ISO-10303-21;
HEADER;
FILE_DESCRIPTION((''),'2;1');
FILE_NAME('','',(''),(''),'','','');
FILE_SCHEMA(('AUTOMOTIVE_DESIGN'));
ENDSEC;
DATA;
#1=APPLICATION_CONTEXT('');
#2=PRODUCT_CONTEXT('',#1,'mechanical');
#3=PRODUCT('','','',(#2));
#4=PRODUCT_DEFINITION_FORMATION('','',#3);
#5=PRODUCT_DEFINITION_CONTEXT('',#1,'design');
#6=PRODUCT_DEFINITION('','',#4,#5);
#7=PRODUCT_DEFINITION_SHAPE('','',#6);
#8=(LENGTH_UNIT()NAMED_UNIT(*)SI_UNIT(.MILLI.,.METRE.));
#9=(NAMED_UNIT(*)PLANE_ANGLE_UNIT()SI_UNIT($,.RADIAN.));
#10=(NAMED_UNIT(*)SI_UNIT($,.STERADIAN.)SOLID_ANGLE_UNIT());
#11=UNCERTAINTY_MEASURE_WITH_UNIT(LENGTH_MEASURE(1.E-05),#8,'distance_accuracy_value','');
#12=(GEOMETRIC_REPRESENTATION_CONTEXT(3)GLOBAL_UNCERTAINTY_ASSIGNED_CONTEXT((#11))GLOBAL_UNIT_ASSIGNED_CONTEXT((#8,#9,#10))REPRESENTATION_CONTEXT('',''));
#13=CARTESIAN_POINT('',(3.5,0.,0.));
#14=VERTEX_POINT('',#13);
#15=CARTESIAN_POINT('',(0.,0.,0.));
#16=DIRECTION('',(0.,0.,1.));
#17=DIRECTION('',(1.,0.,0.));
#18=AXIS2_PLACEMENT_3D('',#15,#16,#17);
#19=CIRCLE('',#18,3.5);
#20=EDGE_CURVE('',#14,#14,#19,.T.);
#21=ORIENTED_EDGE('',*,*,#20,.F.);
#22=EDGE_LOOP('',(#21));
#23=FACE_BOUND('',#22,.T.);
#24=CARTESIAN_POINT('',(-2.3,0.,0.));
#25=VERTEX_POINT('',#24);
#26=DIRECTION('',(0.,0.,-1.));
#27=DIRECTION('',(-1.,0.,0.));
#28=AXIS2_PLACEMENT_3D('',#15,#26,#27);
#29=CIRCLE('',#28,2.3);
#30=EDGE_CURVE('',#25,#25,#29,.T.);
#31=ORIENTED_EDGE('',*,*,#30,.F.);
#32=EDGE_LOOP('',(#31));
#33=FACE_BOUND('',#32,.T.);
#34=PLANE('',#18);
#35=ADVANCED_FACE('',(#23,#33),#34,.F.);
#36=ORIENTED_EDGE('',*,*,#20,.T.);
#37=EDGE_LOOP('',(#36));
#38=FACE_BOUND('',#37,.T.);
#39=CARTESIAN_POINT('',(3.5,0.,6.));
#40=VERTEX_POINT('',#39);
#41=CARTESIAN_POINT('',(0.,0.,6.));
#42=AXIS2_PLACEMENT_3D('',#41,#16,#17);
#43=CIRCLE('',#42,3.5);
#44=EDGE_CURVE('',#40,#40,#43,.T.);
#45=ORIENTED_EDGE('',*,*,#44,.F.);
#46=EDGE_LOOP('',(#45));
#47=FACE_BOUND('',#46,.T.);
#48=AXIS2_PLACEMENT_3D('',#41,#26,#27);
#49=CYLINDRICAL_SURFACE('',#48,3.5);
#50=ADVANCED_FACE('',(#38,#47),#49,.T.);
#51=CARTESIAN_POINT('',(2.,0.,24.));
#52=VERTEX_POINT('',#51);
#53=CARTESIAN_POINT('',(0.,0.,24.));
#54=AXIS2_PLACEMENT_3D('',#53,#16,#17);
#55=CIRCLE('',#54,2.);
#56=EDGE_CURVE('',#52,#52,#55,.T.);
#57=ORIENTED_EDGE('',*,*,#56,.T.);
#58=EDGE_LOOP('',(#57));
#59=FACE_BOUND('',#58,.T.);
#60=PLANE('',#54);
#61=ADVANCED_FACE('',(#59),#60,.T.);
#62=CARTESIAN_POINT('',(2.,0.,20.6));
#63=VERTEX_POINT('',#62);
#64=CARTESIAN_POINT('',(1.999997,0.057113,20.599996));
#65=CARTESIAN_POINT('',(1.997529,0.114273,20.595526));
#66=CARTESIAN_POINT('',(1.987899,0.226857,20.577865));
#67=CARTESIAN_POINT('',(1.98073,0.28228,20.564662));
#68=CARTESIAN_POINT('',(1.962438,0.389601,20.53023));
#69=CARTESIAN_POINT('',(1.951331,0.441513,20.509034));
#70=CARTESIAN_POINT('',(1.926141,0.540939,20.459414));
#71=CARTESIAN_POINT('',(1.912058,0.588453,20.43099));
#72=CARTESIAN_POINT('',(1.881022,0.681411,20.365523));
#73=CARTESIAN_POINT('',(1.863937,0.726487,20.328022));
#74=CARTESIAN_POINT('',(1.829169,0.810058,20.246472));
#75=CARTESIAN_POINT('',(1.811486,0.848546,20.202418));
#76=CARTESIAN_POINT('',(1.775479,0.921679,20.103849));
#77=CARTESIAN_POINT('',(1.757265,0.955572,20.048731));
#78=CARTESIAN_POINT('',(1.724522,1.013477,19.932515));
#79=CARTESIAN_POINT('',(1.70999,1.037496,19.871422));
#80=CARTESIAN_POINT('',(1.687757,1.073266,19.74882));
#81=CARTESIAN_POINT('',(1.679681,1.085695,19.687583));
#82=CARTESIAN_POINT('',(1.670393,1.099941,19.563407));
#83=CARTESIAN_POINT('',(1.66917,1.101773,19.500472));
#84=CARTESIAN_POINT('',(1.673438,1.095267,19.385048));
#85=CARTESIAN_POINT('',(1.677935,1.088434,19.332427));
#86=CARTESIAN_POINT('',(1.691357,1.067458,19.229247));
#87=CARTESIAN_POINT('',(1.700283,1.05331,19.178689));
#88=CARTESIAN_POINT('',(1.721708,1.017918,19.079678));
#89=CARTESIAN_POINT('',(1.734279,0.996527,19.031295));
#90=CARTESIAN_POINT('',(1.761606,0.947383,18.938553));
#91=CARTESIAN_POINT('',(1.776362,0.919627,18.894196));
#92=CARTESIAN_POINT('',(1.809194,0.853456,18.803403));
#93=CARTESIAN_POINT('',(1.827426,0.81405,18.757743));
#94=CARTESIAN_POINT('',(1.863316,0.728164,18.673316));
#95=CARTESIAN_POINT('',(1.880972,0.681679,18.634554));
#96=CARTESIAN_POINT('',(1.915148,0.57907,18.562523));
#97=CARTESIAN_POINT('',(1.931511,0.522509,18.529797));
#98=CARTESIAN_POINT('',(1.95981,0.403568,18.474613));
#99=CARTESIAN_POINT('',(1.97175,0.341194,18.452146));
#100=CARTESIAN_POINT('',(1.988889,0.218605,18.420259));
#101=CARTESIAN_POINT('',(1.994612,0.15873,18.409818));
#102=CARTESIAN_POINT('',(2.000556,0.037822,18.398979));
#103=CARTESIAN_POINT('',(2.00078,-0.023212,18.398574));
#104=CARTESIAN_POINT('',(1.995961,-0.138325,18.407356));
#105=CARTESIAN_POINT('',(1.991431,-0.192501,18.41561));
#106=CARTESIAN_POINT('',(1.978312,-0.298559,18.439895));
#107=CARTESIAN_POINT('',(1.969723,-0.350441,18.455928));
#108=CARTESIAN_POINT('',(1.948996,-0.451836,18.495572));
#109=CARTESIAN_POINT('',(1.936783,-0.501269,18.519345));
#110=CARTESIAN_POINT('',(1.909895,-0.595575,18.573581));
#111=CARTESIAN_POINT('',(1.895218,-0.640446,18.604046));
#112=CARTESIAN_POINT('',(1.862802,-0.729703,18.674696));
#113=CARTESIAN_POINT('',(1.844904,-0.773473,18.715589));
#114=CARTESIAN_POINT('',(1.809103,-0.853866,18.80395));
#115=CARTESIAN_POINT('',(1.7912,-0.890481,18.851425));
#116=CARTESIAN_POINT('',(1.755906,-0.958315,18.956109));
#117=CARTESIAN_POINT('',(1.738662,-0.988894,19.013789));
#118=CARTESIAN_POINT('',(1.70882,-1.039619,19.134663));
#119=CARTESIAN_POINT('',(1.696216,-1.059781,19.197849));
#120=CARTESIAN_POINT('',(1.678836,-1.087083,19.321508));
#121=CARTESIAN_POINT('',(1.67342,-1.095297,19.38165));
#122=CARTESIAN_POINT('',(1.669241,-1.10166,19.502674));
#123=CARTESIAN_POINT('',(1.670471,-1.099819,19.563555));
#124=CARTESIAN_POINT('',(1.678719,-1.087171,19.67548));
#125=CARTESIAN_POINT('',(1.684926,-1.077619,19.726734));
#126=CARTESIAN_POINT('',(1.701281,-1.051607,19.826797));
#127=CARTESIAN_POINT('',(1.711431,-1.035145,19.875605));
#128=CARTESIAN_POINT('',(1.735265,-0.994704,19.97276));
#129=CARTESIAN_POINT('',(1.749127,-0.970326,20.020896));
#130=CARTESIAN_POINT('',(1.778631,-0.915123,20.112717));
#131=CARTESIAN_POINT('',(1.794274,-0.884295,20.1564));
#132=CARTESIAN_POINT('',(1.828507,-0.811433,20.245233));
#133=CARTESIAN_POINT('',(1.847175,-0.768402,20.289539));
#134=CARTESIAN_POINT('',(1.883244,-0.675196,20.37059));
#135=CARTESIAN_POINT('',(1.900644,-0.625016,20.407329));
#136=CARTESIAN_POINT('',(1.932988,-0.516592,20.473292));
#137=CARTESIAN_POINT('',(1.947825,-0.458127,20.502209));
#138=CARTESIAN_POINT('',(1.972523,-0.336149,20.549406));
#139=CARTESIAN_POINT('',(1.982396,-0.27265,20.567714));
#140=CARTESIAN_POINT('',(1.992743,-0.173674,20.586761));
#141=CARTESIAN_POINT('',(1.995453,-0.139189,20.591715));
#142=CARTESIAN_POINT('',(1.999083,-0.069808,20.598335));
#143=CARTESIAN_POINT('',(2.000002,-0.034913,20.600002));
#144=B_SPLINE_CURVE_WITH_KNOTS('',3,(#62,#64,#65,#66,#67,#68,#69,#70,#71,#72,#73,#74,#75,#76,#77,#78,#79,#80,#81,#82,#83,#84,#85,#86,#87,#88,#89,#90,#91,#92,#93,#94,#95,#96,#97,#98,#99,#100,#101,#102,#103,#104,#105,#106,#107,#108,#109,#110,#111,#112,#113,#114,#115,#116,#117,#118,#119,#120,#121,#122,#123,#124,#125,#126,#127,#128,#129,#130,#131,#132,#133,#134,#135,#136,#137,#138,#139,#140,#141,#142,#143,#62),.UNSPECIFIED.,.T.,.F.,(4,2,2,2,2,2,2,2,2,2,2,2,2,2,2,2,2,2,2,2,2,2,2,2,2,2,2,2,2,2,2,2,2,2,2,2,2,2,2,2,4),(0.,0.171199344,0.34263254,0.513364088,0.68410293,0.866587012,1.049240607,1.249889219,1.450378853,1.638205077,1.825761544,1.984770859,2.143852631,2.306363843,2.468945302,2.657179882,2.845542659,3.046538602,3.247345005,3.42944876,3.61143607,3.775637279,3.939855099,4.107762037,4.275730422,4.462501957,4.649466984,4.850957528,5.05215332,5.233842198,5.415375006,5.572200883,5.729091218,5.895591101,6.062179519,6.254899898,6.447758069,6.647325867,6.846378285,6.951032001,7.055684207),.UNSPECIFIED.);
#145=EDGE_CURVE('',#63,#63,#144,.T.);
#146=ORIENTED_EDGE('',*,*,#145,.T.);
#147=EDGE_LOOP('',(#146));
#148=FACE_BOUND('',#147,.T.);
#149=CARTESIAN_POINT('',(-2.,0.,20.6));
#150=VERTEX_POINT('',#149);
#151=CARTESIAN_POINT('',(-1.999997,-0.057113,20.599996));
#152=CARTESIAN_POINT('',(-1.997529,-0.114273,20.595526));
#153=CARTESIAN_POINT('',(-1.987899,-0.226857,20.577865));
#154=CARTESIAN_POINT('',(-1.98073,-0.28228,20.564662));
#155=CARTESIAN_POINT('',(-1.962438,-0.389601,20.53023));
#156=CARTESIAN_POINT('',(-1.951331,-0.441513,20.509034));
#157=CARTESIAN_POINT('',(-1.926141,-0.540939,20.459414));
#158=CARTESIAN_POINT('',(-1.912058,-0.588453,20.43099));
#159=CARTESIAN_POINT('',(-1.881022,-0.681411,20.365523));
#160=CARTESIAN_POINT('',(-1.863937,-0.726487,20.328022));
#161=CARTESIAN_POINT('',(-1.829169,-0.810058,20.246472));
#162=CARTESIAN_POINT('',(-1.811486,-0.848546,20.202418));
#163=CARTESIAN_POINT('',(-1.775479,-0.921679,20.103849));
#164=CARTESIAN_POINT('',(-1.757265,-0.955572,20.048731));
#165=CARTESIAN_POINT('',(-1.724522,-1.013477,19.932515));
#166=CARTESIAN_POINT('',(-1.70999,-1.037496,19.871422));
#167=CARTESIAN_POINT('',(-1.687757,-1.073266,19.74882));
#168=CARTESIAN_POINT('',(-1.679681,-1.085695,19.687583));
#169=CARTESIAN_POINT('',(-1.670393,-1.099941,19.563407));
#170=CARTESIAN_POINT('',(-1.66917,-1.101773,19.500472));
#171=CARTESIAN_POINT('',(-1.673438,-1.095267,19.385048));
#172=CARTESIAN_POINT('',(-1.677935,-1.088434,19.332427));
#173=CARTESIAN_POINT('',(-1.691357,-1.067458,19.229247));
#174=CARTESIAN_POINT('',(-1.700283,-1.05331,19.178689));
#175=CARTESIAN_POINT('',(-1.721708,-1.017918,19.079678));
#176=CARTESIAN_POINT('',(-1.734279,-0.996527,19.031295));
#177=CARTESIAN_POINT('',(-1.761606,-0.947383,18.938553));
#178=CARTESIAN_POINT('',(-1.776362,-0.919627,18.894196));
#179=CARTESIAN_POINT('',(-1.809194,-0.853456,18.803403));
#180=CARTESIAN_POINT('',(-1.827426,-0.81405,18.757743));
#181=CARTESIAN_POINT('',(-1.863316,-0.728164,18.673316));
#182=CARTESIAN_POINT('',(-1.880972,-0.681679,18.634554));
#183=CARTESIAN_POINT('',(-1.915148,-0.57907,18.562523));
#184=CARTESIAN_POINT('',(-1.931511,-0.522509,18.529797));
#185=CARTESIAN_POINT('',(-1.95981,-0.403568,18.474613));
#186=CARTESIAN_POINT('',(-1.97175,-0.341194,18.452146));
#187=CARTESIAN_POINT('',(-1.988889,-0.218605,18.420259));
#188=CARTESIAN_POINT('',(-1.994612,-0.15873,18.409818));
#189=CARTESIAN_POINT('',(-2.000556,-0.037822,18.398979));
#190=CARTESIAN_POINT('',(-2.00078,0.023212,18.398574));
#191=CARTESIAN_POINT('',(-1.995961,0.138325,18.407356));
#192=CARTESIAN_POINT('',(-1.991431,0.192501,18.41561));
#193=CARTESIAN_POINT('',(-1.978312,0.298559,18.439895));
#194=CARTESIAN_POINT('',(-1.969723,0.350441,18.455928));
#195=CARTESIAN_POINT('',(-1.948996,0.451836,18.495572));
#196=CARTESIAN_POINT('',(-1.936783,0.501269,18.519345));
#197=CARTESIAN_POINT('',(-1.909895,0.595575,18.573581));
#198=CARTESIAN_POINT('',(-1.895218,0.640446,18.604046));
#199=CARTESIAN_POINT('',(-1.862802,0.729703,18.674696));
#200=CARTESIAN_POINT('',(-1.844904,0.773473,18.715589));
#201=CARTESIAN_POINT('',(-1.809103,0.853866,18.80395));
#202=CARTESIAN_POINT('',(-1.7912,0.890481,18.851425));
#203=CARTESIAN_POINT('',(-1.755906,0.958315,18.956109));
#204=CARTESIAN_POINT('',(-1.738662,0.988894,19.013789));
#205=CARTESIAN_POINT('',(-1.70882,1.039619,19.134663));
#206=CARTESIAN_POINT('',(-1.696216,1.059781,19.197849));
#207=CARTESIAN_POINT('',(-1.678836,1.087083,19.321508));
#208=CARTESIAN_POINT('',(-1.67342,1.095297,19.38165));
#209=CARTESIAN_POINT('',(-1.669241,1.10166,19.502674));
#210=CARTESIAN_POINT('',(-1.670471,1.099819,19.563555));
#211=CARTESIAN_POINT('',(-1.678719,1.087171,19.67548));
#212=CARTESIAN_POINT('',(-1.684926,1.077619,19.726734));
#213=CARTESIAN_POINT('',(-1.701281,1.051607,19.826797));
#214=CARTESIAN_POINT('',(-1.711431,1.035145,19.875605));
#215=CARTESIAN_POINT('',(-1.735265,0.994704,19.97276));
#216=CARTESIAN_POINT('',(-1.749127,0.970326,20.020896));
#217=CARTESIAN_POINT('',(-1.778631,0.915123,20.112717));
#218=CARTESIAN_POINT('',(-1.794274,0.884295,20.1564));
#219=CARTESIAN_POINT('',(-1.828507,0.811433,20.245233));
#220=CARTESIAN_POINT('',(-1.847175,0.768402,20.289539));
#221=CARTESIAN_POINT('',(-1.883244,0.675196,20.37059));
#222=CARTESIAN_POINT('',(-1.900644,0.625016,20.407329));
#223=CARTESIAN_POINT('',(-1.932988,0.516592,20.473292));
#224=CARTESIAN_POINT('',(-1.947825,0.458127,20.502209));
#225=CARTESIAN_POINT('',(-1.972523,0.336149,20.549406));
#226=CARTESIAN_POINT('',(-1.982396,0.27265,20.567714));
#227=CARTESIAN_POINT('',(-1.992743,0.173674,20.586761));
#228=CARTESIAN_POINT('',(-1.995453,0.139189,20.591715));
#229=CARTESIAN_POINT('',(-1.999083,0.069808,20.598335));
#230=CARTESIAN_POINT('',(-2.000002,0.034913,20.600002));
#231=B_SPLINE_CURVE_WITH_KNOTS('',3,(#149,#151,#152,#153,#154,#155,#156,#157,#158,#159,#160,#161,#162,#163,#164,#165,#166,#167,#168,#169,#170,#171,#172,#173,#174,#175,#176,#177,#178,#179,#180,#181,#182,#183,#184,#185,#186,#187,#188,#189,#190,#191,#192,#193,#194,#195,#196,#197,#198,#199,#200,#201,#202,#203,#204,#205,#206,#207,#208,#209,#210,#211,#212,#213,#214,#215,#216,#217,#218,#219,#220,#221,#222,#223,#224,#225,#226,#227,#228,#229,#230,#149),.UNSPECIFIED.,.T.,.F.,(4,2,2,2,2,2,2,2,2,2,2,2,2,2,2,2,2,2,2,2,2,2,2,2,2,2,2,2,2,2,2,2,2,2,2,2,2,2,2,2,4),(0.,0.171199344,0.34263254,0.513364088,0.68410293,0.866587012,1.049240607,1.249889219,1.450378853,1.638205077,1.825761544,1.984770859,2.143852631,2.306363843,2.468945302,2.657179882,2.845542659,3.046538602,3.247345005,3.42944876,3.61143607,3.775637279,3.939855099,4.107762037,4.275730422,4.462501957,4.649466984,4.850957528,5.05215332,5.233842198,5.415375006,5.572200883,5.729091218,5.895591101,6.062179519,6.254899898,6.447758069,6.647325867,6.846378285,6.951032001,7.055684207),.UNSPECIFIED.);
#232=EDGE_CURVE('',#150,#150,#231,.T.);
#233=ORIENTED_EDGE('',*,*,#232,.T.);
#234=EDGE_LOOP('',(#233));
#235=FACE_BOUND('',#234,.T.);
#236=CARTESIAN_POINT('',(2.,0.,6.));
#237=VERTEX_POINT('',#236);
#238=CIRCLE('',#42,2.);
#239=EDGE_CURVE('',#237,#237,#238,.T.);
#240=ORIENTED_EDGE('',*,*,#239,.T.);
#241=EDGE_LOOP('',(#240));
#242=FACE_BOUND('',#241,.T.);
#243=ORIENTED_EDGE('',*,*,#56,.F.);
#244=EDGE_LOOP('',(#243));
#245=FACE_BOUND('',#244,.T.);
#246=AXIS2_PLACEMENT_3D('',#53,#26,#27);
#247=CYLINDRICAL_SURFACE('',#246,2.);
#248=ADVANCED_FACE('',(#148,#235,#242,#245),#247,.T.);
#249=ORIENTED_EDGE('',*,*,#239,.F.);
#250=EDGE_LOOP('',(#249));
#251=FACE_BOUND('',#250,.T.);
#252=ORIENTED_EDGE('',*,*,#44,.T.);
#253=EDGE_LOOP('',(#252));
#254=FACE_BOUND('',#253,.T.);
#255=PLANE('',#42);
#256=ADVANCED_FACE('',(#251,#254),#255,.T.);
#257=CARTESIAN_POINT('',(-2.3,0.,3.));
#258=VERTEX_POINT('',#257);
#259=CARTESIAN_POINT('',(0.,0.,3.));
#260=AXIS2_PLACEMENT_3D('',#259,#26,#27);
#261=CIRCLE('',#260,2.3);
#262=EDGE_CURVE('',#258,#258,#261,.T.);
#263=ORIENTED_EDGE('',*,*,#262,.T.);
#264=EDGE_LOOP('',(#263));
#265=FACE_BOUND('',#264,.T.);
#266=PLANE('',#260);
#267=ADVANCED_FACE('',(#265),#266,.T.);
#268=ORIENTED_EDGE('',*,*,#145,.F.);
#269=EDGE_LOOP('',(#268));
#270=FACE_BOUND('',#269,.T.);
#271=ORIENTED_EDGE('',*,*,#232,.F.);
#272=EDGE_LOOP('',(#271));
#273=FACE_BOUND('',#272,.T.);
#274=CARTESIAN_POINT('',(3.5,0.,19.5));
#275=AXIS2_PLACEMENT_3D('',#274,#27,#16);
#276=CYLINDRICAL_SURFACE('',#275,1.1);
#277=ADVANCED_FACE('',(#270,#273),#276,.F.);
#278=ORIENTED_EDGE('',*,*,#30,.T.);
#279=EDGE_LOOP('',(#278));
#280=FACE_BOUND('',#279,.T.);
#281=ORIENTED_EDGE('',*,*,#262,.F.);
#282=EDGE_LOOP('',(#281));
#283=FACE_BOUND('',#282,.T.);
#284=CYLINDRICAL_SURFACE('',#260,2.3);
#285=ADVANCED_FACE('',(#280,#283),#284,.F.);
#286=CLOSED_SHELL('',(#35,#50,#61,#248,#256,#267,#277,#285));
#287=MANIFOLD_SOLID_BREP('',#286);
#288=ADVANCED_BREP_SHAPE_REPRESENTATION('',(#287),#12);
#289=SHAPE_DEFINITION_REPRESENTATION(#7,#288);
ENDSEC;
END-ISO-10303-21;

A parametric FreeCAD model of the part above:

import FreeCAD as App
import Part
import Sketcher

V = App.Vector

doc = App.newDocument("Part")
params = doc.addObject("Spreadsheet::Sheet", "Params")
for row, (alias, value) in enumerate([
    ("sketch1_diameter", "7 mm"),
    ("pad1_length", "6 mm"),
    ("sketch2_diameter", "4 mm"),
    ("pad2_length", "18 mm"),
    ("sketch3_diameter", "2.2 mm"),
    ("sketch4_diameter", "4.6 mm"),
    ("pocket2_length", "3 mm"),
], start=1):
    params.set(f"A{row}", alias)
    params.set(f"B{row}", "=" + value)
    params.setAlias(f"B{row}", alias)

body = doc.addObject("PartDesign::Body", "Body")

# Sketch on XY plane
sketch1 = doc.addObject("Sketcher::SketchObject", "Sketch")
body.addObject(sketch1)
sketch1.AttachmentSupport = (doc.XY_Plane, [""])
sketch1.MapMode = "FlatFace"
sketch1.addGeometry(Part.Circle(V(0, 0, 0), V(0, 0, 1), 3.5), False)
sketch1.addConstraint(Sketcher.Constraint("Coincident", 0, 3, -1, 1))
sketch1.addConstraint(Sketcher.Constraint("Diameter", 0, 7.0))
sketch1.setExpression("Constraints[1]", "Params.sketch1_diameter")
pad1 = doc.addObject("PartDesign::Pad", "Pad")
body.addObject(pad1)
pad1.Profile = sketch1
pad1.setExpression("Length", "Params.pad1_length")

# Sketch on XY plane
sketch2 = doc.addObject("Sketcher::SketchObject", "Sketch001")
body.addObject(sketch2)
sketch2.AttachmentSupport = (doc.XY_Plane, [""])
sketch2.MapMode = "FlatFace"
sketch2.AttachmentOffset = App.Placement(V(0, 0, 6), App.Rotation())
sketch2.addGeometry(Part.Circle(V(0, 0, 0), V(0, 0, 1), 2), False)
sketch2.addConstraint(Sketcher.Constraint("Coincident", 0, 3, -1, 1))
sketch2.addConstraint(Sketcher.Constraint("Diameter", 0, 4.0))
sketch2.setExpression("Constraints[1]", "Params.sketch2_diameter")
pad2 = doc.addObject("PartDesign::Pad", "Pad001")
body.addObject(pad2)
pad2.Profile = sketch2
pad2.setExpression("Length", "Params.pad2_length")

# Sketch on YZ plane
sketch3 = doc.addObject("Sketcher::SketchObject", "Sketch002")
body.addObject(sketch3)
sketch3.AttachmentSupport = (doc.YZ_Plane, [""])
sketch3.MapMode = "FlatFace"
sketch3.AttachmentOffset = App.Placement(V(0, 0, -2), App.Rotation())
sketch3.addGeometry(Part.Circle(V(0, 19.5, 0), V(0, 0, 1), 1.1), False)
sketch3.addConstraint(Sketcher.Constraint("PointOnObject", 0, 3, -2))
sketch3.addConstraint(Sketcher.Constraint("Diameter", 0, 2.2))
sketch3.addConstraint(Sketcher.Constraint("DistanceY", -1, 1, 0, 3, 19.5))
sketch3.setExpression("Constraints[1]", "Params.sketch3_diameter")
pocket1 = doc.addObject("PartDesign::Pocket", "Pocket")
body.addObject(pocket1)
pocket1.Profile = sketch3
pocket1.Type = "ThroughAll"
pocket1.Reversed = True

# Sketch on XY plane
sketch4 = doc.addObject("Sketcher::SketchObject", "Sketch003")
body.addObject(sketch4)
sketch4.AttachmentSupport = (doc.XY_Plane, [""])
sketch4.MapMode = "FlatFace"
sketch4.addGeometry(Part.Circle(V(0, 0, 0), V(0, 0, 1), 2.3), False)
sketch4.addConstraint(Sketcher.Constraint("Coincident", 0, 3, -1, 1))
sketch4.addConstraint(Sketcher.Constraint("Diameter", 0, 4.6))
sketch4.setExpression("Constraints[1]", "Params.sketch4_diameter")
pocket2 = doc.addObject("PartDesign::Pocket", "Pocket001")
body.addObject(pocket2)
pocket2.Profile = sketch4
pocket2.setExpression("Length", "Params.pocket2_length")
pocket2.Reversed = True

doc.recompute()
